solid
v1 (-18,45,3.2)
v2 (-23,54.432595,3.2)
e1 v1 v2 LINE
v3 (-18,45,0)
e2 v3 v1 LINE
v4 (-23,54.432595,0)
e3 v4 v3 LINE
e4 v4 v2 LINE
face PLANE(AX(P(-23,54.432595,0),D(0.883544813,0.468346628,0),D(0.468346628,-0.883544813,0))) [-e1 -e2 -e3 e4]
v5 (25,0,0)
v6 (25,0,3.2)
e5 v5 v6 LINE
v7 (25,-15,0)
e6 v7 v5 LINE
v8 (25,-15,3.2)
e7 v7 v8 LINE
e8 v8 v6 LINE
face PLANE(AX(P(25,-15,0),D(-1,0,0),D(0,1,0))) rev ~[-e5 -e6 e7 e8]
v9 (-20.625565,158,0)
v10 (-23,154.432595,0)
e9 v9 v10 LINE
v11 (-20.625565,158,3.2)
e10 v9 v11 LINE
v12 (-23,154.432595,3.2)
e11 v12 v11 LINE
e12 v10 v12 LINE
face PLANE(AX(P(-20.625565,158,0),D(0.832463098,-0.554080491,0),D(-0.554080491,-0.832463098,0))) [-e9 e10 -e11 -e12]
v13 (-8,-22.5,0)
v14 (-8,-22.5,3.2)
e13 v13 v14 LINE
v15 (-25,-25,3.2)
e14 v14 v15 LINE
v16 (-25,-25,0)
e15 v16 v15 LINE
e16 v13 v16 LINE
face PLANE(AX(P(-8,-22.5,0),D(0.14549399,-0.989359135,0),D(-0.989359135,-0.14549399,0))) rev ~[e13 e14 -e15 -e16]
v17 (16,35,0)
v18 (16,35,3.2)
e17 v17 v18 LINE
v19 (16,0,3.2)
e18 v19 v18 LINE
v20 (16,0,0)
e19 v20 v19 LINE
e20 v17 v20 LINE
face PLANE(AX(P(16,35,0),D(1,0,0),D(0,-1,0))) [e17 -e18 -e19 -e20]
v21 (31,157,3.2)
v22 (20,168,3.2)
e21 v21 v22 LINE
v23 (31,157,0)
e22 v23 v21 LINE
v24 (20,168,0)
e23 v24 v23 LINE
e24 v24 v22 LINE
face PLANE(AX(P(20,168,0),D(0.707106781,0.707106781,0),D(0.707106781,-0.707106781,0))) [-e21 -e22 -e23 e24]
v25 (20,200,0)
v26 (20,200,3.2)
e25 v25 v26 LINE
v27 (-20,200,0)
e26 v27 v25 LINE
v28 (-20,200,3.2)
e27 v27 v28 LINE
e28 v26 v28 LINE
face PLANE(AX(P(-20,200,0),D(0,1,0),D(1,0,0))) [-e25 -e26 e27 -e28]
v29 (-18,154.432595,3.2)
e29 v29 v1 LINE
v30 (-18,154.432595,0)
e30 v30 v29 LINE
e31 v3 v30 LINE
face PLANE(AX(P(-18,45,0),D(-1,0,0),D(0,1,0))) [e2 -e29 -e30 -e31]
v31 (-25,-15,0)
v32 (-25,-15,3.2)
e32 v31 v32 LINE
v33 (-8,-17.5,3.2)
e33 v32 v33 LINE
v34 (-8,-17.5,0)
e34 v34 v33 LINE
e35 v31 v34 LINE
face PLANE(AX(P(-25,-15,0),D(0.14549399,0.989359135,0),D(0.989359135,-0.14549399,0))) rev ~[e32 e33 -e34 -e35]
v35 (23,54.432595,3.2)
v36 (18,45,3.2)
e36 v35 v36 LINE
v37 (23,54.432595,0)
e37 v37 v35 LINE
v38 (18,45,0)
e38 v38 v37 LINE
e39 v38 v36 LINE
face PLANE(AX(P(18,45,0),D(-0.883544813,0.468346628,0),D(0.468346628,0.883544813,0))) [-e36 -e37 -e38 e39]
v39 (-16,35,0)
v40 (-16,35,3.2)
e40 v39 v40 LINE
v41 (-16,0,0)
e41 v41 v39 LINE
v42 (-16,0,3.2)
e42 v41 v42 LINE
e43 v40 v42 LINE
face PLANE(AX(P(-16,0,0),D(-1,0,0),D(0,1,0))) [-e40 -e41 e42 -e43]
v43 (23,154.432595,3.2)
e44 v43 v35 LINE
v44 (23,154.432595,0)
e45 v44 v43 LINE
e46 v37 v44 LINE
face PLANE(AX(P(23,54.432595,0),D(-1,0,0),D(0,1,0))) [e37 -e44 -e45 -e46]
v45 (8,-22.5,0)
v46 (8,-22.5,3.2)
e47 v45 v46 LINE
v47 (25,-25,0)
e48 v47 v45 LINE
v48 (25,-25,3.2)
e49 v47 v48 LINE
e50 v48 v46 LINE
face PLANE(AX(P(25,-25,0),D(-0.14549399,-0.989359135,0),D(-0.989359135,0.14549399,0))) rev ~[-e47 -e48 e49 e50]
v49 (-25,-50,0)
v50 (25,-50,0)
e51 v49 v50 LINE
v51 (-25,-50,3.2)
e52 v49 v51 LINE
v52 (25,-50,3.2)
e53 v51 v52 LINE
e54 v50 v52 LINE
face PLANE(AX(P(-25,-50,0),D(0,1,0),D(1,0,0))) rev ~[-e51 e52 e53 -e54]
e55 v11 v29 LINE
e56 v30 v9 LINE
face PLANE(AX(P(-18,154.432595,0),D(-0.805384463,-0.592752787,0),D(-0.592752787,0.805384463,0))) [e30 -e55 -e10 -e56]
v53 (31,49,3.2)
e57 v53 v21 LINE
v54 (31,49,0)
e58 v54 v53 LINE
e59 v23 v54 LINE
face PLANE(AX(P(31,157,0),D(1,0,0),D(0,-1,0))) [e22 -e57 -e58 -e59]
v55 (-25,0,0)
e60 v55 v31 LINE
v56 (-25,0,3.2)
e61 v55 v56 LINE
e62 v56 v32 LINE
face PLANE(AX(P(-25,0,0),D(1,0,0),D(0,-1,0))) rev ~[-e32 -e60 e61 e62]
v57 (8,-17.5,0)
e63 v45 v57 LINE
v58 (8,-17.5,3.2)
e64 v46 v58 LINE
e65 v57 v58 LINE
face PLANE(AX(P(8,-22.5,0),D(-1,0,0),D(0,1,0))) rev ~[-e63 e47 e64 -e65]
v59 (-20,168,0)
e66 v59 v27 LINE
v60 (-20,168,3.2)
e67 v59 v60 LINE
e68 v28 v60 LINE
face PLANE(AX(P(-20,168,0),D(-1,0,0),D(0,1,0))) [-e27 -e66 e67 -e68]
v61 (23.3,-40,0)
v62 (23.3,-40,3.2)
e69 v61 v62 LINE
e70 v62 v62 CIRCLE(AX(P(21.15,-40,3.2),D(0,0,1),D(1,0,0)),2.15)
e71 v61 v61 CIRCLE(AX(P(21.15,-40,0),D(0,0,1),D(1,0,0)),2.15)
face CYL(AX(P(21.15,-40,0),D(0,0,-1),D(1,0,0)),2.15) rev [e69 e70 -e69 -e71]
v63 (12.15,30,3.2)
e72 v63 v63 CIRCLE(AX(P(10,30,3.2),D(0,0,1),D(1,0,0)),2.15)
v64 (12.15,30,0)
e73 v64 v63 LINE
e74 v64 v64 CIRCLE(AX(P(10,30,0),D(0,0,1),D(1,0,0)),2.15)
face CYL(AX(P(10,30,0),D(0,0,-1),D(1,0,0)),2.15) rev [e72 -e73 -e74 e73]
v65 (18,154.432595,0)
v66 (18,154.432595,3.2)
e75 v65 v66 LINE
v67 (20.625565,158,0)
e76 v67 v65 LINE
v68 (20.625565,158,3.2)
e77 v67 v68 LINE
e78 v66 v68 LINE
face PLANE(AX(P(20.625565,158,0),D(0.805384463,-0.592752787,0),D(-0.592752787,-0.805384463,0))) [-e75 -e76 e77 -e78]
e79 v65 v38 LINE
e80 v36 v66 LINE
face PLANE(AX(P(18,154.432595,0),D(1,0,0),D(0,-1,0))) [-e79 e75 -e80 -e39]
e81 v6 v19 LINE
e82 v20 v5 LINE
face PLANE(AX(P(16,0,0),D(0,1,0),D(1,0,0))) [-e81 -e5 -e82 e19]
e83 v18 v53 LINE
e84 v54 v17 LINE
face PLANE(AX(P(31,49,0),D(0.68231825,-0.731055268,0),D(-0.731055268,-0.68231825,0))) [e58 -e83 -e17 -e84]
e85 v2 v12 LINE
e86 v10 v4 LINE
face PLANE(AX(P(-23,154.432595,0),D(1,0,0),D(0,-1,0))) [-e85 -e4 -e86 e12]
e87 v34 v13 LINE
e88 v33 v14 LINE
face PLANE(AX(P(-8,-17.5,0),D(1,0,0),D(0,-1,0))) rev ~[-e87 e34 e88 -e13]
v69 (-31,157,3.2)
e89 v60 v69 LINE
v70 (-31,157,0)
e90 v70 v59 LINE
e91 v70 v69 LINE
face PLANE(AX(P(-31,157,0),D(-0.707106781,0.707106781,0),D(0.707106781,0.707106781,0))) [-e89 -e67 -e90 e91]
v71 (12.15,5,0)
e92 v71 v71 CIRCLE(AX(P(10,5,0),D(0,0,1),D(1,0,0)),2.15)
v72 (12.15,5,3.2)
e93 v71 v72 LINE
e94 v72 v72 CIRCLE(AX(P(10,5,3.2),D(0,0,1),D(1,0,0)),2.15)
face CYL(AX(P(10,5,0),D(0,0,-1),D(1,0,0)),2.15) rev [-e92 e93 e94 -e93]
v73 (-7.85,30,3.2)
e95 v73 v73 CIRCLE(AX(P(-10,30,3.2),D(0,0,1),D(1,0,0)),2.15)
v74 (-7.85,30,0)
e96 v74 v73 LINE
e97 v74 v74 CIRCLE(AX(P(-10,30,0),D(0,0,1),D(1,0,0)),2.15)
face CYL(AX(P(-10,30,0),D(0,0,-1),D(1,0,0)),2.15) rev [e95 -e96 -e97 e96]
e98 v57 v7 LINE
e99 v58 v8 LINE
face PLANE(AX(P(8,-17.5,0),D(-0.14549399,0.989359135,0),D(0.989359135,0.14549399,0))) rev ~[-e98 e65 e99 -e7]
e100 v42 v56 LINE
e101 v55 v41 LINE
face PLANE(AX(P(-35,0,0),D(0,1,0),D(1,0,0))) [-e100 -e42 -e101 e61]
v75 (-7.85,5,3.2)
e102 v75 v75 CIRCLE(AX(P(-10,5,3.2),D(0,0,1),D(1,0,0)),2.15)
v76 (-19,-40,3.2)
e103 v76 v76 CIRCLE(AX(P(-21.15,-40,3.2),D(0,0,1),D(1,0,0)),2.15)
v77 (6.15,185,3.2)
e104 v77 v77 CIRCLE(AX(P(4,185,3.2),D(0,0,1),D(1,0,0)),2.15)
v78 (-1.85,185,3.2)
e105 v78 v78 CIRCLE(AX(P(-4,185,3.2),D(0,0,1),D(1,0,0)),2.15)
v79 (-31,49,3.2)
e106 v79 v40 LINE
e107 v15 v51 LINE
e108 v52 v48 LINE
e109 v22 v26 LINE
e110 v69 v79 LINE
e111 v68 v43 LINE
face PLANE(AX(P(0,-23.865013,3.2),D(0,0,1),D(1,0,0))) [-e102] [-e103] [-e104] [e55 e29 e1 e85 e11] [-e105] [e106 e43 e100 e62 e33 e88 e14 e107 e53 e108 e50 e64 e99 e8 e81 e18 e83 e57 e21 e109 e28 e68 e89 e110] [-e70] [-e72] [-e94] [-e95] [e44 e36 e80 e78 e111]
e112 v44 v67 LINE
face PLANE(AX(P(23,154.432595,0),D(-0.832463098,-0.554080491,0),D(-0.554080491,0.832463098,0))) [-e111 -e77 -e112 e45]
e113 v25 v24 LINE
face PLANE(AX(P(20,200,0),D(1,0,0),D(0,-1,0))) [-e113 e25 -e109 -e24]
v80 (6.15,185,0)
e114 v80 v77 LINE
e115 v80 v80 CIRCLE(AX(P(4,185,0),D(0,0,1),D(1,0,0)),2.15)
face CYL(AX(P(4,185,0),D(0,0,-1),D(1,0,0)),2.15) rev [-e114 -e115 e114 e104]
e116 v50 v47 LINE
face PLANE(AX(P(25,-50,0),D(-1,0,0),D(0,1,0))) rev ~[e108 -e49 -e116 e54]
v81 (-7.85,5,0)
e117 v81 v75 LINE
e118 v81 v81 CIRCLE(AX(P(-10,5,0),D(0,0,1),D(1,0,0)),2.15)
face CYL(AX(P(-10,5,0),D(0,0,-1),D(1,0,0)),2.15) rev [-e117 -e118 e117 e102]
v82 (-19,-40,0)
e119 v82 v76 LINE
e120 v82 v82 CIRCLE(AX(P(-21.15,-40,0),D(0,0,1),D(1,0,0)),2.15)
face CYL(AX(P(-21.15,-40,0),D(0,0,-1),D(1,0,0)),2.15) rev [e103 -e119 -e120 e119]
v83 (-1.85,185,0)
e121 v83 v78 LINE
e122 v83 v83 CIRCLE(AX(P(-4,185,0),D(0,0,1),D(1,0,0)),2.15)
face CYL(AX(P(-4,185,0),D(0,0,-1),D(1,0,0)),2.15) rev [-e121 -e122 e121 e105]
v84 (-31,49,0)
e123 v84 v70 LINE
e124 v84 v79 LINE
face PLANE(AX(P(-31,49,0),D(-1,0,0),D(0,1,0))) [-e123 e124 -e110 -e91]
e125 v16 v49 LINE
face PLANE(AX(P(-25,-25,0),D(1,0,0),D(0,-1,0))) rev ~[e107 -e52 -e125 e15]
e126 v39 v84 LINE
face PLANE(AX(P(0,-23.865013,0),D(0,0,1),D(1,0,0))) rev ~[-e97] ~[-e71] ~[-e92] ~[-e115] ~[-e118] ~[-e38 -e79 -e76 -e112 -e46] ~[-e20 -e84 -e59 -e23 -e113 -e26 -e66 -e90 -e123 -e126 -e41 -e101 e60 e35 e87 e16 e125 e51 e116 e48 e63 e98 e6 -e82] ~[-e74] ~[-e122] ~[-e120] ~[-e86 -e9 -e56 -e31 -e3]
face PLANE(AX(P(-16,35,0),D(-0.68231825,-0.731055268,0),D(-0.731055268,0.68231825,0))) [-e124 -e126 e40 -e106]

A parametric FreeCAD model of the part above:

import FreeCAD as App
import Part
import Sketcher

V = App.Vector
Q = App.Units.Quantity


def add_polygon(sketch, points):
    """Adds a closed chain of lines whose ends are joined by coincident constraints."""
    first, n = sketch.GeometryCount, len(points)
    for a, b in zip(points, points[1:] + points[:1]):
        sketch.addGeometry(Part.LineSegment(App.Vector(*a, 0), App.Vector(*b, 0)), False)
    for i in range(n):
        sketch.addConstraint(Sketcher.Constraint("Coincident", first + i, 2, first + (i + 1) % n, 1))

doc = App.newDocument("Part")
params = doc.addObject("Spreadsheet::Sheet", "Params")
for row, (alias, value) in enumerate([
    ("sketch1_diameter", "4.3 mm"),
    ("sketch1_width", "50 mm"),
    ("sketch1_width2", "10 mm"),
    ("sketch1_height", "25 mm"),
    ("sketch1_height2", "5 mm"),
    ("pad1_length", "3.2 mm"),
    ("sketch2_width", "40 mm"),
    ("sketch2_width2", "19 mm"),
    ("sketch2_width3", "70 mm"),
    ("sketch2_height", "32 mm"),
    ("sketch2_height2", "108 mm"),
    ("pocket1_length", "74 mm"),
    ("sketch3_width", "40 mm"),
    ("sketch3_width2", "19 mm"),
    ("sketch3_width3", "70 mm"),
    ("sketch3_height", "32 mm"),
    ("sketch3_height2", "108 mm"),
    ("pocket2_length", "32.4 mm"),
], start=1):
    params.set(f"A{row}", alias)
    params.set(f"B{row}", "=" + value)
    params.setAlias(f"B{row}", alias)

body = doc.addObject("PartDesign::Body", "Body")

sketch1 = body.newObject("Sketcher::SketchObject", "Sketch")
sketch1.AttachmentSupport = (doc.getObject("XY_Plane"), [""])
sketch1.MapMode = "FlatFace"
add_polygon(sketch1, [(-25, -25), (-25, -50), (25, -50), (25, -25), (8, -22.5), (8, -17.5), (25, -15), (25, 0), (35, 0), (35, 225), (-35, 225), (-35, 0), (-25, 0), (-25, -15), (-8, -17.5), (-8, -22.5)])
sketch1.addGeometry(Part.Circle(V(-21.1, -40, 0), V(0, 0, 1), 2.1), False)
sketch1.addGeometry(Part.Circle(V(-10, 5, 0), V(0, 0, 1), 2.1), False)
sketch1.addGeometry(Part.Circle(V(-10, 30, 0), V(0, 0, 1), 2.1), False)
sketch1.addGeometry(Part.Circle(V(10, 5, 0), V(0, 0, 1), 2.1), False)
sketch1.addGeometry(Part.Circle(V(21.1, -40, 0), V(0, 0, 1), 2.1), False)
sketch1.addGeometry(Part.Circle(V(10, 30, 0), V(0, 0, 1), 2.1), False)
sketch1.addGeometry(Part.Circle(V(-4, 185, 0), V(0, 0, 1), 2.1), False)
sketch1.addGeometry(Part.Circle(V(4, 185, 0), V(0, 0, 1), 2.1), False)
sketch1.addConstraint([
    Sketcher.Constraint("Vertical", 0),
    Sketcher.Constraint("Horizontal", 1),
    Sketcher.Constraint("Vertical", 2),
    Sketcher.Constraint("Vertical", 4),
    Sketcher.Constraint("Vertical", 6),
    Sketcher.Constraint("Horizontal", 7),
    Sketcher.Constraint("Vertical", 8),
    Sketcher.Constraint("Horizontal", 9),
    Sketcher.Constraint("Vertical", 10),
    Sketcher.Constraint("Horizontal", 11),
    Sketcher.Constraint("Vertical", 12),
    Sketcher.Constraint("Vertical", 14),
    Sketcher.Constraint("Equal", 16, 17),
    Sketcher.Constraint("Equal", 17, 18),
    Sketcher.Constraint("Equal", 18, 19),
    Sketcher.Constraint("Equal", 19, 20),
    Sketcher.Constraint("Equal", 20, 21),
    Sketcher.Constraint("Equal", 21, 22),
    Sketcher.Constraint("Equal", 22, 23),
    Sketcher.Constraint("Symmetric", 7, 2, 10, 2, -1, 1),
    Sketcher.Constraint("Symmetric", 17, 3, 19, 3, -2),
    Sketcher.Constraint("Symmetric", 16, 3, 20, 3, -2),
    Sketcher.Constraint("Symmetric", 18, 3, 21, 3, -2),
    Sketcher.Constraint("Symmetric", 22, 3, 23, 3, -2),
    Sketcher.Constraint("Symmetric", 6, 2, 11, 2, -2),
    Sketcher.Constraint("Symmetric", 4, 2, 13, 2, -2),
    Sketcher.Constraint("Symmetric", 2, 2, 15, 2, -2),
    Sketcher.Constraint("Parallel", 3, 13),
    Sketcher.Constraint("Parallel", 5, 15),
    Sketcher.Constraint("Horizontal", 5, 2, 12, 2),
    Sketcher.Constraint("Vertical", 17, 3, 18, 3),
    Sketcher.Constraint("Vertical", 2, 2, 5, 2),
    Sketcher.Constraint("Diameter", 16, Q("4.3 mm")),
    Sketcher.Constraint("DistanceX", 1, 1, 1, 2, Q("50 mm")),
    Sketcher.Constraint("DistanceX", 7, 1, 7, 2, Q("10 mm")),
    Sketcher.Constraint("DistanceY", 0, 2, 0, 1, Q("25 mm")),
    Sketcher.Constraint("DistanceY", 4, 1, 4, 2, Q("5 mm")),
    Sketcher.Constraint("DistanceY", 6, 1, 6, 2, Q("15 mm")),
    Sketcher.Constraint("DistanceY", 8, 1, 8, 2, Q("225 mm")),
    Sketcher.Constraint("DistanceY", 16, 3, -1, 1, Q("40 mm")),
    Sketcher.Constraint("DistanceX", 17, 3, -1, 1, Q("10 mm")),
    Sketcher.Constraint("DistanceY", -1, 1, 17, 3, Q("5 mm")),
    Sketcher.Constraint("DistanceY", -1, 1, 18, 3, Q("30 mm")),
    Sketcher.Constraint("DistanceX", 22, 3, -1, 1, Q("4 mm")),
    Sketcher.Constraint("DistanceY", -1, 1, 22, 3, Q("185 mm")),
    Sketcher.Constraint("DistanceY", 0, 2, -1, 1, Q("50 mm")),
    Sketcher.Constraint("DistanceX", -1, 1, 3, 2, Q("8 mm")),
    Sketcher.Constraint("DistanceX", 16, 3, 20, 3, Q("42.3 mm")),
])
sketch1.setExpression("Constraints[48]", "Params.sketch1_diameter")
sketch1.setExpression("Constraints[49]", "Params.sketch1_width")
sketch1.setExpression("Constraints[50]", "Params.sketch1_width2")
sketch1.setExpression("Constraints[51]", "Params.sketch1_height")
sketch1.setExpression("Constraints[52]", "Params.sketch1_height2")
pad1 = body.newObject("PartDesign::Pad", "Pad")
pad1.Profile = sketch1
pad1.setExpression("Length", "Params.pad1_length")

sketch2 = body.newObject("Sketcher::SketchObject", "Sketch001")
sketch2.AttachmentSupport = (doc.getObject("XY_Plane"), [""])
sketch2.MapMode = "FlatFace"
add_polygon(sketch2, [(-20, 168), (-20, 200), (20, 200), (20, 168), (31, 157), (31, 49), (16, 35), (16, 0), (35, 0), (35, 225), (-35, 225), (-35, 0), (-16, 0), (-16, 35), (-31, 49), (-31, 157)])
add_polygon(sketch2, [(23, 154.4), (20.6, 158), (18, 154.4), (18, 45), (23, 54.4)])
add_polygon(sketch2, [(-18, 154.4), (-20.6, 158), (-23, 154.4), (-23, 54.4), (-18, 45)])
sketch2.addConstraint([
    Sketcher.Constraint("Vertical", 0),
    Sketcher.Constraint("Horizontal", 1),
    Sketcher.Constraint("Vertical", 2),
    Sketcher.Constraint("Vertical", 4),
    Sketcher.Constraint("Vertical", 6),
    Sketcher.Constraint("Horizontal", 7),
    Sketcher.Constraint("Vertical", 8),
    Sketcher.Constraint("Horizontal", 9),
    Sketcher.Constraint("Vertical", 10),
    Sketcher.Constraint("Horizontal", 11),
    Sketcher.Constraint("Vertical", 12),
    Sketcher.Constraint("Vertical", 14),
    Sketcher.Constraint("Vertical", 18),
    Sketcher.Constraint("Vertical", 20),
    Sketcher.Constraint("Vertical", 23),
    Sketcher.Constraint("Vertical", 25),
    Sketcher.Constraint("Symmetric", 7, 2, 10, 2, -1, 1),
    Sketcher.Constraint("Symmetric", 6, 2, 11, 2, -2),
    Sketcher.Constraint("Symmetric", 4, 2, 13, 2, -2),
    Sketcher.Constraint("Symmetric", 2, 2, 15, 2, -2),
    Sketcher.Constraint("Symmetric", 16, 2, 21, 2, -2),
    Sketcher.Constraint("Symmetric", 20, 2, 22, 2, -2),
    Sketcher.Constraint("Symmetric", 18, 2, 24, 2, -2),
    Sketcher.Constraint("Perpendicular", 3, 15),
    Sketcher.Constraint("Horizontal", 5, 2, 12, 2),
    Sketcher.Constraint("Horizontal", 3, 2, 14, 2),
    Sketcher.Constraint("Horizontal", 17, 2, 20, 2),
    Sketcher.Constraint("Horizontal", 19, 2, 23, 2),
    Sketcher.Constraint("Horizontal", 22, 2, 25, 2),
    Sketcher.Constraint("DistanceX", 1, 1, 1, 2, Q("40 mm")),
    Sketcher.Constraint("DistanceX", 7, 1, 7, 2, Q("19 mm")),
    Sketcher.Constraint("DistanceX", 9, 2, 9, 1, Q("70 mm")),
    Sketcher.Constraint("DistanceY", 0, 1, 0, 2, Q("32 mm")),
    Sketcher.Constraint("DistanceY", 4, 2, 4, 1, Q("108 mm")),
    Sketcher.Constraint("DistanceY", 6, 2, 6, 1, Q("35 mm")),
    Sketcher.Constraint("DistanceY", 8, 1, 8, 2, Q("225 mm")),
    Sketcher.Constraint("DistanceY", 20, 1, 20, 2, Q("100 mm")),
    Sketcher.Constraint("DistanceY", -1, 1, 0, 2, Q("200 mm")),
    Sketcher.Constraint("DistanceX", -1, 1, 3, 2, Q("31 mm")),
    Sketcher.Constraint("DistanceY", -1, 1, 16, 2, Q("158 mm")),
    Sketcher.Constraint("DistanceX", -1, 1, 17, 2, Q("18 mm")),
    Sketcher.Constraint("DistanceY", -1, 1, 18, 2, Q("45 mm")),
    Sketcher.Constraint("DistanceX", -1, 1, 19, 2, Q("23 mm")),
    Sketcher.Constraint("Distance", 16, Q("4.285361 mm")),
    Sketcher.Constraint("DistanceY", 18, 2, 18, 1, Q("109.432595 mm")),
])
sketch2.setExpression("Constraints[55]", "Params.sketch2_width")
sketch2.setExpression("Constraints[56]", "Params.sketch2_width2")
sketch2.setExpression("Constraints[57]", "Params.sketch2_width3")
sketch2.setExpression("Constraints[58]", "Params.sketch2_height")
sketch2.setExpression("Constraints[59]", "Params.sketch2_height2")
pocket1 = body.newObject("PartDesign::Pocket", "Pocket")
pocket1.Profile = sketch2
pocket1.setExpression("Length", "Params.pocket1_length")
pocket1.Reversed = True

sketch3 = body.newObject("Sketcher::SketchObject", "Sketch002")
sketch3.AttachmentSupport = (doc.getObject("XY_Plane"), [""])
sketch3.MapMode = "FlatFace"
add_polygon(sketch3, [(-20, 168), (-20, 200), (20, 200), (20, 168), (31, 157), (31, 49), (16, 35), (16, 0), (35, 0), (35, 225), (-35, 225), (-35, 0), (-16, 0), (-16, 35), (-31, 49), (-31, 157)])
add_polygon(sketch3, [(23, 154.4), (20.6, 158), (18, 154.4), (18, 45), (23, 54.4)])
add_polygon(sketch3, [(-18, 154.4), (-20.6, 158), (-23, 154.4), (-23, 54.4), (-18, 45)])
sketch3.addConstraint([
    Sketcher.Constraint("Vertical", 0),
    Sketcher.Constraint("Horizontal", 1),
    Sketcher.Constraint("Vertical", 2),
    Sketcher.Constraint("Vertical", 4),
    Sketcher.Constraint("Vertical", 6),
    Sketcher.Constraint("Horizontal", 7),
    Sketcher.Constraint("Vertical", 8),
    Sketcher.Constraint("Horizontal", 9),
    Sketcher.Constraint("Vertical", 10),
    Sketcher.Constraint("Horizontal", 11),
    Sketcher.Constraint("Vertical", 12),
    Sketcher.Constraint("Vertical", 14),
    Sketcher.Constraint("Vertical", 18),
    Sketcher.Constraint("Vertical", 20),
    Sketcher.Constraint("Vertical", 23),
    Sketcher.Constraint("Vertical", 25),
    Sketcher.Constraint("Symmetric", 7, 2, 10, 2, -1, 1),
    Sketcher.Constraint("Symmetric", 6, 2, 11, 2, -2),
    Sketcher.Constraint("Symmetric", 4, 2, 13, 2, -2),
    Sketcher.Constraint("Symmetric", 2, 2, 15, 2, -2),
    Sketcher.Constraint("Symmetric", 16, 2, 21, 2, -2),
    Sketcher.Constraint("Symmetric", 20, 2, 22, 2, -2),
    Sketcher.Constraint("Symmetric", 18, 2, 24, 2, -2),
    Sketcher.Constraint("Perpendicular", 3, 15),
    Sketcher.Constraint("Horizontal", 5, 2, 12, 2),
    Sketcher.Constraint("Horizontal", 3, 2, 14, 2),
    Sketcher.Constraint("Horizontal", 17, 2, 20, 2),
    Sketcher.Constraint("Horizontal", 19, 2, 23, 2),
    Sketcher.Constraint("Horizontal", 22, 2, 25, 2),
    Sketcher.Constraint("DistanceX", 1, 1, 1, 2, Q("40 mm")),
    Sketcher.Constraint("DistanceX", 7, 1, 7, 2, Q("19 mm")),
    Sketcher.Constraint("DistanceX", 9, 2, 9, 1, Q("70 mm")),
    Sketcher.Constraint("DistanceY", 0, 1, 0, 2, Q("32 mm")),
    Sketcher.Constraint("DistanceY", 4, 2, 4, 1, Q("108 mm")),
    Sketcher.Constraint("DistanceY", 6, 2, 6, 1, Q("35 mm")),
    Sketcher.Constraint("DistanceY", 8, 1, 8, 2, Q("225 mm")),
    Sketcher.Constraint("DistanceY", 20, 1, 20, 2, Q("100 mm")),
    Sketcher.Constraint("DistanceY", -1, 1, 0, 2, Q("200 mm")),
    Sketcher.Constraint("DistanceX", -1, 1, 3, 2, Q("31 mm")),
    Sketcher.Constraint("DistanceY", -1, 1, 16, 2, Q("158 mm")),
    Sketcher.Constraint("DistanceX", -1, 1, 17, 2, Q("18 mm")),
    Sketcher.Constraint("DistanceY", -1, 1, 18, 2, Q("45 mm")),
    Sketcher.Constraint("DistanceX", -1, 1, 19, 2, Q("23 mm")),
    Sketcher.Constraint("Distance", 16, Q("4.285361 mm")),
    Sketcher.Constraint("DistanceY", 18, 2, 18, 1, Q("109.432595 mm")),
])
sketch3.setExpression("Constraints[55]", "Params.sketch3_width")
sketch3.setExpression("Constraints[56]", "Params.sketch3_width2")
sketch3.setExpression("Constraints[57]", "Params.sketch3_width3")
sketch3.setExpression("Constraints[58]", "Params.sketch3_height")
sketch3.setExpression("Constraints[59]", "Params.sketch3_height2")
pocket2 = body.newObject("PartDesign::Pocket", "Pocket001")
pocket2.Profile = sketch3
pocket2.setExpression("Length", "Params.pocket2_length")

doc.recompute()
